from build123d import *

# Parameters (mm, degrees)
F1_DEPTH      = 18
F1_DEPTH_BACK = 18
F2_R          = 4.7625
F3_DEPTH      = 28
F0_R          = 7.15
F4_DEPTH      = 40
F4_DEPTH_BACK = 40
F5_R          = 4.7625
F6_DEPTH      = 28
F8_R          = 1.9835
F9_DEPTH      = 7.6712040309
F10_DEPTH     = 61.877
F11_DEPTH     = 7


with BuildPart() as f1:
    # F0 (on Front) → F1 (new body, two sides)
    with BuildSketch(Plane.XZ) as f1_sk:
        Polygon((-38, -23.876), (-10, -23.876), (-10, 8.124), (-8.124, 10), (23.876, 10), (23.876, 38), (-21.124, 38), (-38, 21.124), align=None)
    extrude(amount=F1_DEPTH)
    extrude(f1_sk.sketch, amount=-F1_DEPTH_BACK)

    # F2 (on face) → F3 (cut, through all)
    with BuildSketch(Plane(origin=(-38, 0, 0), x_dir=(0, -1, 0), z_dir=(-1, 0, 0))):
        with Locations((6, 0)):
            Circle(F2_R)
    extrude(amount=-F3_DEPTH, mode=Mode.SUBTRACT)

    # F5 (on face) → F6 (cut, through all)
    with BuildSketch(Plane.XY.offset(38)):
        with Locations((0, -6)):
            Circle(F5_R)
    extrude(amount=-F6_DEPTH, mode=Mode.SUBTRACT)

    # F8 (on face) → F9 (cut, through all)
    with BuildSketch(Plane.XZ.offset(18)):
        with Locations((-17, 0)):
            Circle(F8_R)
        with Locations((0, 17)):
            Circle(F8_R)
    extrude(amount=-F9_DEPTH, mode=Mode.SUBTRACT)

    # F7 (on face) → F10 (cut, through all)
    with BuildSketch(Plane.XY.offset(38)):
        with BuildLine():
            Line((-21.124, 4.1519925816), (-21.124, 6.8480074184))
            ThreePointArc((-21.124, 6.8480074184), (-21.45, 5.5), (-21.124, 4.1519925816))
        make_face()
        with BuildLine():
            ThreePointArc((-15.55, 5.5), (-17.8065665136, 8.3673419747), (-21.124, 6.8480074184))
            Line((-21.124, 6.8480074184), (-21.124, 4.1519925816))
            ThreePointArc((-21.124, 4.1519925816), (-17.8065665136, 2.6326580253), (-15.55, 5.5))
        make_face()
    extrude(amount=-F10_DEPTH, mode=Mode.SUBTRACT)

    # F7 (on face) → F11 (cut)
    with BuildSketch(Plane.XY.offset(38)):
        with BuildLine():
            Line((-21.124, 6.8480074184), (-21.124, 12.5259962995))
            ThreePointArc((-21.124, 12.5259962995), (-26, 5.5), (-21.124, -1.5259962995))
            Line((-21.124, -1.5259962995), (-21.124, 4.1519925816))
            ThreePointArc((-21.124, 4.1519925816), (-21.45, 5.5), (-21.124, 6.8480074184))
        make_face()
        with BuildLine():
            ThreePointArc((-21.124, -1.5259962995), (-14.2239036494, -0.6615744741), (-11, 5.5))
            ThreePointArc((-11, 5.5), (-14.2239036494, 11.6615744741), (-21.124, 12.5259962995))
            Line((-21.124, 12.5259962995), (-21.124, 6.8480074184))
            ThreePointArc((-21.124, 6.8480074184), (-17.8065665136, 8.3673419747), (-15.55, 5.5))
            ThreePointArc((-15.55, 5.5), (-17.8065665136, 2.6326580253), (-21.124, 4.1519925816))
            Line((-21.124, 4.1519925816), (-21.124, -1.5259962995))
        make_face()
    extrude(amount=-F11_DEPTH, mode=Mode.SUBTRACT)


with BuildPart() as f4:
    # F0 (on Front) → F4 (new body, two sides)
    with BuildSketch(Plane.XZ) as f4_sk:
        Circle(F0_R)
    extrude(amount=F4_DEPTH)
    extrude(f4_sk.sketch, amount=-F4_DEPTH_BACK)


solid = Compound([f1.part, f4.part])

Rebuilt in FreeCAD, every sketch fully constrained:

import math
import FreeCAD as App
import Part
import Sketcher

V = App.Vector
Q = App.Units.Quantity

doc = App.newDocument("Part")
params = doc.addObject("Spreadsheet::Sheet", "Params")
for row, (alias, value) in enumerate([
    ("sketch1_width", "28 mm"),
    ("sketch1_width2", "32 mm"),
    ("sketch1_width3", "45 mm"),
    ("pad1_length", "18 mm"),
    ("pad1_length2", "18 mm"),
    ("pocket3_length", "7.671204 mm"),
    ("sketch5_radius", "2.95 mm"),
    ("sketch6_radius", "7.5 mm"),
    ("sketch6_radius2", "2.95 mm"),
    ("pocket5_length", "7 mm"),
    ("sketch7_diameter", "14.3 mm"),
    ("pad2_length", "40 mm"),
    ("pad2_length2", "40 mm"),
], start=1):
    params.set(f"A{row}", alias)
    params.set(f"B{row}", "=" + value)
    params.setAlias(f"B{row}", alias)

body = doc.addObject("PartDesign::Body", "Body")

# Sketch on XZ plane
sketch1 = doc.addObject("Sketcher::SketchObject", "Sketch")
body.addObject(sketch1)
sketch1.AttachmentSupport = (doc.XZ_Plane, [""])
sketch1.MapMode = "FlatFace"
sketch1.addGeometry(Part.LineSegment(V(-38, -23.9, 0), V(-10, -23.9, 0)), False)
sketch1.addGeometry(Part.LineSegment(V(-10, -23.9, 0), V(-10, 8.1, 0)), False)
sketch1.addGeometry(Part.LineSegment(V(-10, 8.1, 0), V(-8.1, 10, 0)), False)
sketch1.addGeometry(Part.LineSegment(V(-8.1, 10, 0), V(23.9, 10, 0)), False)
sketch1.addGeometry(Part.LineSegment(V(23.9, 10, 0), V(23.9, 38, 0)), False)
sketch1.addGeometry(Part.LineSegment(V(23.9, 38, 0), V(-21.1, 38, 0)), False)
sketch1.addGeometry(Part.LineSegment(V(-21.1, 38, 0), V(-38, 21.1, 0)), False)
sketch1.addGeometry(Part.LineSegment(V(-38, 21.1, 0), V(-38, -23.9, 0)), False)
sketch1.addConstraint(Sketcher.Constraint("Coincident", 0, 2, 1, 1))
sketch1.addConstraint(Sketcher.Constraint("Coincident", 1, 2, 2, 1))
sketch1.addConstraint(Sketcher.Constraint("Coincident", 2, 2, 3, 1))
sketch1.addConstraint(Sketcher.Constraint("Coincident", 3, 2, 4, 1))
sketch1.addConstraint(Sketcher.Constraint("Coincident", 4, 2, 5, 1))
sketch1.addConstraint(Sketcher.Constraint("Coincident", 5, 2, 6, 1))
sketch1.addConstraint(Sketcher.Constraint("Coincident", 6, 2, 7, 1))
sketch1.addConstraint(Sketcher.Constraint("Coincident", 7, 2, 0, 1))
sketch1.addConstraint(Sketcher.Constraint("Horizontal", 0))
sketch1.addConstraint(Sketcher.Constraint("Vertical", 1))
sketch1.addConstraint(Sketcher.Constraint("Horizontal", 3))
sketch1.addConstraint(Sketcher.Constraint("Vertical", 4))
sketch1.addConstraint(Sketcher.Constraint("Horizontal", 5))
sketch1.addConstraint(Sketcher.Constraint("Vertical", 7))
sketch1.addConstraint(Sketcher.Constraint("Parallel", 2, 6))
sketch1.addConstraint(Sketcher.Constraint("Equal", 3, 1))
sketch1.addConstraint(Sketcher.Constraint("Equal", 0, 4))
sketch1.addConstraint(Sketcher.Constraint("Equal", 5, 7))
sketch1.addConstraint(Sketcher.Constraint("DistanceX", 0, 1, 0, 2, Q("28 mm")))
sketch1.addConstraint(Sketcher.Constraint("DistanceX", 3, 1, 3, 2, Q("32 mm")))
sketch1.addConstraint(Sketcher.Constraint("DistanceX", 5, 2, 5, 1, Q("45 mm")))
sketch1.addConstraint(Sketcher.Constraint("DistanceX", 0, 2, -1, 1, Q("10 mm")))
sketch1.addConstraint(Sketcher.Constraint("DistanceY", -1, 1, 2, 2, Q("10 mm")))
sketch1.addConstraint(Sketcher.Constraint("DistanceY", 0, 2, -1, 1, Q("23.876 mm")))
sketch1.setExpression("Constraints[18]", "Params.sketch1_width")
sketch1.setExpression("Constraints[19]", "Params.sketch1_width2")
sketch1.setExpression("Constraints[20]", "Params.sketch1_width3")
pad1 = doc.addObject("PartDesign::Pad", "Pad")
body.addObject(pad1)
pad1.Profile = sketch1
pad1.Type = "TwoLengths"
pad1.setExpression("Length", "Params.pad1_length")
pad1.setExpression("Length2", "Params.pad1_length2")

# Sketch on YZ plane
sketch2 = doc.addObject("Sketcher::SketchObject", "Sketch001")
body.addObject(sketch2)
sketch2.AttachmentSupport = (doc.YZ_Plane, [""])
sketch2.MapMode = "FlatFace"
sketch2.AttachmentOffset = App.Placement(V(0, 0, -38), App.Rotation())
sketch2.addGeometry(Part.Circle(V(-6, 0, 0), V(0, 0, 1), 4.8), False)
sketch2.addConstraint(Sketcher.Constraint("PointOnObject", 0, 3, -1))
sketch2.addConstraint(Sketcher.Constraint("Diameter", 0, Q("9.525 mm")))
sketch2.addConstraint(Sketcher.Constraint("DistanceX", 0, 3, -1, 1, Q("6 mm")))
pocket1 = doc.addObject("PartDesign::Pocket", "Pocket")
body.addObject(pocket1)
pocket1.Profile = sketch2
pocket1.Type = "ThroughAll"
pocket1.Reversed = True

# Sketch on XY plane
sketch3 = doc.addObject("Sketcher::SketchObject", "Sketch002")
body.addObject(sketch3)
sketch3.AttachmentSupport = (doc.XY_Plane, [""])
sketch3.MapMode = "FlatFace"
sketch3.AttachmentOffset = App.Placement(V(0, 0, 38), App.Rotation())
sketch3.addGeometry(Part.Circle(V(0, -6, 0), V(0, 0, 1), 4.8), False)
sketch3.addConstraint(Sketcher.Constraint("PointOnObject", 0, 3, -2))
sketch3.addConstraint(Sketcher.Constraint("Diameter", 0, Q("9.525 mm")))
sketch3.addConstraint(Sketcher.Constraint("DistanceY", 0, 3, -1, 1, Q("6 mm")))
pocket2 = doc.addObject("PartDesign::Pocket", "Pocket001")
body.addObject(pocket2)
pocket2.Profile = sketch3
pocket2.Type = "ThroughAll"

# Sketch on XZ plane
sketch4 = doc.addObject("Sketcher::SketchObject", "Sketch003")
body.addObject(sketch4)
sketch4.AttachmentSupport = (doc.XZ_Plane, [""])
sketch4.MapMode = "FlatFace"
sketch4.AttachmentOffset = App.Placement(V(0, 0, 18), App.Rotation())
sketch4.addGeometry(Part.Circle(V(-17, 0, 0), V(0, 0, 1), 2), False)
sketch4.addGeometry(Part.Circle(V(0, 17, 0), V(0, 0, 1), 2), False)
sketch4.addConstraint(Sketcher.Constraint("Equal", 0, 1))
sketch4.addConstraint(Sketcher.Constraint("PointOnObject", 0, 3, -1))
sketch4.addConstraint(Sketcher.Constraint("PointOnObject", 1, 3, -2))
sketch4.addConstraint(Sketcher.Constraint("Diameter", 0, Q("3.967 mm")))
sketch4.addConstraint(Sketcher.Constraint("DistanceX", 0, 3, -1, 1, Q("17 mm")))
sketch4.addConstraint(Sketcher.Constraint("DistanceY", -1, 1, 1, 3, Q("17 mm")))
pocket3 = doc.addObject("PartDesign::Pocket", "Pocket002")
body.addObject(pocket3)
pocket3.Profile = sketch4
pocket3.setExpression("Length", "Params.pocket3_length")

# Sketch on XY plane
sketch5 = doc.addObject("Sketcher::SketchObject", "Sketch004")
body.addObject(sketch5)
sketch5.AttachmentSupport = (doc.XY_Plane, [""])
sketch5.MapMode = "FlatFace"
sketch5.AttachmentOffset = App.Placement(V(0, 0, 38), App.Rotation())
sketch5.addGeometry(Part.ArcOfCircle(Part.Circle(V(-18.5, 5.5, 0), V(0, 0, 1), 3), math.radians(153), math.radians(207)), False)
sketch5.addGeometry(Part.ArcOfCircle(Part.Circle(V(-18.5, 5.5, 0), V(0, 0, 1), 3), math.radians(-153), math.radians(0)), False)
sketch5.addGeometry(Part.ArcOfCircle(Part.Circle(V(-18.5, 5.5, 0), V(0, 0, 1), 3), math.radians(0), math.radians(153)), False)
sketch5.addConstraint(Sketcher.Constraint("Tangent", 0, 2, 1, 1))
sketch5.addConstraint(Sketcher.Constraint("Tangent", 1, 2, 2, 1))
sketch5.addConstraint(Sketcher.Constraint("Tangent", 2, 2, 0, 1))
sketch5.addConstraint(Sketcher.Constraint("Horizontal", 2, 3, 1, 2))
sketch5.addConstraint(Sketcher.Constraint("Vertical", 0, 2, 2, 2))
sketch5.addConstraint(Sketcher.Constraint("Radius", 0, Q("2.95 mm")))
sketch5.addConstraint(Sketcher.Constraint("DistanceX", 0, 3, -1, 1, Q("18.5 mm")))
sketch5.addConstraint(Sketcher.Constraint("DistanceY", -1, 1, 0, 3, Q("5.5 mm")))
sketch5.addConstraint(Sketcher.Constraint("DistanceX", 0, 2, -1, 1, Q("21.124 mm")))
sketch5.setExpression("Constraints[5]", "Params.sketch5_radius")
pocket4 = doc.addObject("PartDesign::Pocket", "Pocket003")
body.addObject(pocket4)
pocket4.Profile = sketch5
pocket4.Type = "ThroughAll"

# Sketch on XY plane
sketch6 = doc.addObject("Sketcher::SketchObject", "Sketch005")
body.addObject(sketch6)
sketch6.AttachmentSupport = (doc.XY_Plane, [""])
sketch6.MapMode = "FlatFace"
sketch6.AttachmentOffset = App.Placement(V(0, 0, 38), App.Rotation())
sketch6.addGeometry(Part.ArcOfCircle(Part.Circle(V(-18.5, 5.5, 0), V(0, 0, 1), 7.5), math.radians(110), math.radians(250)), False)
sketch6.addGeometry(Part.ArcOfCircle(Part.Circle(V(-18.5, 5.5, 0), V(0, 0, 1), 7.5), math.radians(-110), math.radians(0)), False)
sketch6.addGeometry(Part.ArcOfCircle(Part.Circle(V(-18.5, 5.5, 0), V(0, 0, 1), 7.5), math.radians(0), math.radians(110)), False)
sketch6.addGeometry(Part.ArcOfCircle(Part.Circle(V(-18.5, 5.5, 0), V(0, 0, 1), 3), math.radians(153), math.radians(207)), False)
sketch6.addGeometry(Part.ArcOfCircle(Part.Circle(V(-18.5, 5.5, 0), V(0, 0, 1), 3), math.radians(0), math.radians(153)), False)
sketch6.addGeometry(Part.ArcOfCircle(Part.Circle(V(-18.5, 5.5, 0), V(0, 0, 1), 3), math.radians(-153), math.radians(0)), False)
sketch6.addConstraint(Sketcher.Constraint("Tangent", 0, 2, 1, 1))
sketch6.addConstraint(Sketcher.Constraint("Tangent", 1, 2, 2, 1))
sketch6.addConstraint(Sketcher.Constraint("Tangent", 2, 2, 0, 1))
sketch6.addConstraint(Sketcher.Constraint("Tangent", 3, 1, 4, 2))
sketch6.addConstraint(Sketcher.Constraint("Tangent", 4, 1, 5, 2))
sketch6.addConstraint(Sketcher.Constraint("Tangent", 5, 1, 3, 2))
sketch6.addConstraint(Sketcher.Constraint("Coincident", 3, 3, 0, 3))
sketch6.addConstraint(Sketcher.Constraint("Horizontal", 5, 3, 1, 2))
sketch6.addConstraint(Sketcher.Constraint("Horizontal", 1, 2, 4, 1))
sketch6.addConstraint(Sketcher.Constraint("Vertical", 0, 2, 2, 2))
sketch6.addConstraint(Sketcher.Constraint("Vertical", 2, 2, 3, 1))
sketch6.addConstraint(Sketcher.Constraint("Vertical", 3, 1, 5, 1))
sketch6.addConstraint(Sketcher.Constraint("Radius", 0, Q("7.5 mm")))
sketch6.addConstraint(Sketcher.Constraint("Radius", 3, Q("2.95 mm")))
sketch6.addConstraint(Sketcher.Constraint("DistanceX", 1, 2, -1, 1, Q("11 mm")))
sketch6.addConstraint(Sketcher.Constraint("DistanceY", -1, 1, 0, 3, Q("5.5 mm")))
sketch6.addConstraint(Sketcher.Constraint("DistanceX", 0, 2, -1, 1, Q("21.124 mm")))
sketch6.setExpression("Constraints[12]", "Params.sketch6_radius")
sketch6.setExpression("Constraints[13]", "Params.sketch6_radius2")
pocket5 = doc.addObject("PartDesign::Pocket", "Pocket004")
body.addObject(pocket5)
pocket5.Profile = sketch6
pocket5.setExpression("Length", "Params.pocket5_length")
body2 = doc.addObject("PartDesign::Body", "Body001")

# Sketch on XZ plane
sketch7 = doc.addObject("Sketcher::SketchObject", "Sketch006")
body2.addObject(sketch7)
sketch7.AttachmentSupport = (doc.getObject("XZ_Plane001"), [""])
sketch7.MapMode = "FlatFace"
sketch7.addGeometry(Part.Circle(V(0, 0, 0), V(0, 0, 1), 7), False)
sketch7.addConstraint(Sketcher.Constraint("Coincident", 0, 3, -1, 1))
sketch7.addConstraint(Sketcher.Constraint("Diameter", 0, Q("14.3 mm")))
sketch7.setExpression("Constraints[1]", "Params.sketch7_diameter")
pad2 = doc.addObject("PartDesign::Pad", "Pad001")
body2.addObject(pad2)
pad2.Profile = sketch7
pad2.Type = "TwoLengths"
pad2.setExpression("Length", "Params.pad2_length")
pad2.setExpression("Length2", "Params.pad2_length2")

doc.recompute()
